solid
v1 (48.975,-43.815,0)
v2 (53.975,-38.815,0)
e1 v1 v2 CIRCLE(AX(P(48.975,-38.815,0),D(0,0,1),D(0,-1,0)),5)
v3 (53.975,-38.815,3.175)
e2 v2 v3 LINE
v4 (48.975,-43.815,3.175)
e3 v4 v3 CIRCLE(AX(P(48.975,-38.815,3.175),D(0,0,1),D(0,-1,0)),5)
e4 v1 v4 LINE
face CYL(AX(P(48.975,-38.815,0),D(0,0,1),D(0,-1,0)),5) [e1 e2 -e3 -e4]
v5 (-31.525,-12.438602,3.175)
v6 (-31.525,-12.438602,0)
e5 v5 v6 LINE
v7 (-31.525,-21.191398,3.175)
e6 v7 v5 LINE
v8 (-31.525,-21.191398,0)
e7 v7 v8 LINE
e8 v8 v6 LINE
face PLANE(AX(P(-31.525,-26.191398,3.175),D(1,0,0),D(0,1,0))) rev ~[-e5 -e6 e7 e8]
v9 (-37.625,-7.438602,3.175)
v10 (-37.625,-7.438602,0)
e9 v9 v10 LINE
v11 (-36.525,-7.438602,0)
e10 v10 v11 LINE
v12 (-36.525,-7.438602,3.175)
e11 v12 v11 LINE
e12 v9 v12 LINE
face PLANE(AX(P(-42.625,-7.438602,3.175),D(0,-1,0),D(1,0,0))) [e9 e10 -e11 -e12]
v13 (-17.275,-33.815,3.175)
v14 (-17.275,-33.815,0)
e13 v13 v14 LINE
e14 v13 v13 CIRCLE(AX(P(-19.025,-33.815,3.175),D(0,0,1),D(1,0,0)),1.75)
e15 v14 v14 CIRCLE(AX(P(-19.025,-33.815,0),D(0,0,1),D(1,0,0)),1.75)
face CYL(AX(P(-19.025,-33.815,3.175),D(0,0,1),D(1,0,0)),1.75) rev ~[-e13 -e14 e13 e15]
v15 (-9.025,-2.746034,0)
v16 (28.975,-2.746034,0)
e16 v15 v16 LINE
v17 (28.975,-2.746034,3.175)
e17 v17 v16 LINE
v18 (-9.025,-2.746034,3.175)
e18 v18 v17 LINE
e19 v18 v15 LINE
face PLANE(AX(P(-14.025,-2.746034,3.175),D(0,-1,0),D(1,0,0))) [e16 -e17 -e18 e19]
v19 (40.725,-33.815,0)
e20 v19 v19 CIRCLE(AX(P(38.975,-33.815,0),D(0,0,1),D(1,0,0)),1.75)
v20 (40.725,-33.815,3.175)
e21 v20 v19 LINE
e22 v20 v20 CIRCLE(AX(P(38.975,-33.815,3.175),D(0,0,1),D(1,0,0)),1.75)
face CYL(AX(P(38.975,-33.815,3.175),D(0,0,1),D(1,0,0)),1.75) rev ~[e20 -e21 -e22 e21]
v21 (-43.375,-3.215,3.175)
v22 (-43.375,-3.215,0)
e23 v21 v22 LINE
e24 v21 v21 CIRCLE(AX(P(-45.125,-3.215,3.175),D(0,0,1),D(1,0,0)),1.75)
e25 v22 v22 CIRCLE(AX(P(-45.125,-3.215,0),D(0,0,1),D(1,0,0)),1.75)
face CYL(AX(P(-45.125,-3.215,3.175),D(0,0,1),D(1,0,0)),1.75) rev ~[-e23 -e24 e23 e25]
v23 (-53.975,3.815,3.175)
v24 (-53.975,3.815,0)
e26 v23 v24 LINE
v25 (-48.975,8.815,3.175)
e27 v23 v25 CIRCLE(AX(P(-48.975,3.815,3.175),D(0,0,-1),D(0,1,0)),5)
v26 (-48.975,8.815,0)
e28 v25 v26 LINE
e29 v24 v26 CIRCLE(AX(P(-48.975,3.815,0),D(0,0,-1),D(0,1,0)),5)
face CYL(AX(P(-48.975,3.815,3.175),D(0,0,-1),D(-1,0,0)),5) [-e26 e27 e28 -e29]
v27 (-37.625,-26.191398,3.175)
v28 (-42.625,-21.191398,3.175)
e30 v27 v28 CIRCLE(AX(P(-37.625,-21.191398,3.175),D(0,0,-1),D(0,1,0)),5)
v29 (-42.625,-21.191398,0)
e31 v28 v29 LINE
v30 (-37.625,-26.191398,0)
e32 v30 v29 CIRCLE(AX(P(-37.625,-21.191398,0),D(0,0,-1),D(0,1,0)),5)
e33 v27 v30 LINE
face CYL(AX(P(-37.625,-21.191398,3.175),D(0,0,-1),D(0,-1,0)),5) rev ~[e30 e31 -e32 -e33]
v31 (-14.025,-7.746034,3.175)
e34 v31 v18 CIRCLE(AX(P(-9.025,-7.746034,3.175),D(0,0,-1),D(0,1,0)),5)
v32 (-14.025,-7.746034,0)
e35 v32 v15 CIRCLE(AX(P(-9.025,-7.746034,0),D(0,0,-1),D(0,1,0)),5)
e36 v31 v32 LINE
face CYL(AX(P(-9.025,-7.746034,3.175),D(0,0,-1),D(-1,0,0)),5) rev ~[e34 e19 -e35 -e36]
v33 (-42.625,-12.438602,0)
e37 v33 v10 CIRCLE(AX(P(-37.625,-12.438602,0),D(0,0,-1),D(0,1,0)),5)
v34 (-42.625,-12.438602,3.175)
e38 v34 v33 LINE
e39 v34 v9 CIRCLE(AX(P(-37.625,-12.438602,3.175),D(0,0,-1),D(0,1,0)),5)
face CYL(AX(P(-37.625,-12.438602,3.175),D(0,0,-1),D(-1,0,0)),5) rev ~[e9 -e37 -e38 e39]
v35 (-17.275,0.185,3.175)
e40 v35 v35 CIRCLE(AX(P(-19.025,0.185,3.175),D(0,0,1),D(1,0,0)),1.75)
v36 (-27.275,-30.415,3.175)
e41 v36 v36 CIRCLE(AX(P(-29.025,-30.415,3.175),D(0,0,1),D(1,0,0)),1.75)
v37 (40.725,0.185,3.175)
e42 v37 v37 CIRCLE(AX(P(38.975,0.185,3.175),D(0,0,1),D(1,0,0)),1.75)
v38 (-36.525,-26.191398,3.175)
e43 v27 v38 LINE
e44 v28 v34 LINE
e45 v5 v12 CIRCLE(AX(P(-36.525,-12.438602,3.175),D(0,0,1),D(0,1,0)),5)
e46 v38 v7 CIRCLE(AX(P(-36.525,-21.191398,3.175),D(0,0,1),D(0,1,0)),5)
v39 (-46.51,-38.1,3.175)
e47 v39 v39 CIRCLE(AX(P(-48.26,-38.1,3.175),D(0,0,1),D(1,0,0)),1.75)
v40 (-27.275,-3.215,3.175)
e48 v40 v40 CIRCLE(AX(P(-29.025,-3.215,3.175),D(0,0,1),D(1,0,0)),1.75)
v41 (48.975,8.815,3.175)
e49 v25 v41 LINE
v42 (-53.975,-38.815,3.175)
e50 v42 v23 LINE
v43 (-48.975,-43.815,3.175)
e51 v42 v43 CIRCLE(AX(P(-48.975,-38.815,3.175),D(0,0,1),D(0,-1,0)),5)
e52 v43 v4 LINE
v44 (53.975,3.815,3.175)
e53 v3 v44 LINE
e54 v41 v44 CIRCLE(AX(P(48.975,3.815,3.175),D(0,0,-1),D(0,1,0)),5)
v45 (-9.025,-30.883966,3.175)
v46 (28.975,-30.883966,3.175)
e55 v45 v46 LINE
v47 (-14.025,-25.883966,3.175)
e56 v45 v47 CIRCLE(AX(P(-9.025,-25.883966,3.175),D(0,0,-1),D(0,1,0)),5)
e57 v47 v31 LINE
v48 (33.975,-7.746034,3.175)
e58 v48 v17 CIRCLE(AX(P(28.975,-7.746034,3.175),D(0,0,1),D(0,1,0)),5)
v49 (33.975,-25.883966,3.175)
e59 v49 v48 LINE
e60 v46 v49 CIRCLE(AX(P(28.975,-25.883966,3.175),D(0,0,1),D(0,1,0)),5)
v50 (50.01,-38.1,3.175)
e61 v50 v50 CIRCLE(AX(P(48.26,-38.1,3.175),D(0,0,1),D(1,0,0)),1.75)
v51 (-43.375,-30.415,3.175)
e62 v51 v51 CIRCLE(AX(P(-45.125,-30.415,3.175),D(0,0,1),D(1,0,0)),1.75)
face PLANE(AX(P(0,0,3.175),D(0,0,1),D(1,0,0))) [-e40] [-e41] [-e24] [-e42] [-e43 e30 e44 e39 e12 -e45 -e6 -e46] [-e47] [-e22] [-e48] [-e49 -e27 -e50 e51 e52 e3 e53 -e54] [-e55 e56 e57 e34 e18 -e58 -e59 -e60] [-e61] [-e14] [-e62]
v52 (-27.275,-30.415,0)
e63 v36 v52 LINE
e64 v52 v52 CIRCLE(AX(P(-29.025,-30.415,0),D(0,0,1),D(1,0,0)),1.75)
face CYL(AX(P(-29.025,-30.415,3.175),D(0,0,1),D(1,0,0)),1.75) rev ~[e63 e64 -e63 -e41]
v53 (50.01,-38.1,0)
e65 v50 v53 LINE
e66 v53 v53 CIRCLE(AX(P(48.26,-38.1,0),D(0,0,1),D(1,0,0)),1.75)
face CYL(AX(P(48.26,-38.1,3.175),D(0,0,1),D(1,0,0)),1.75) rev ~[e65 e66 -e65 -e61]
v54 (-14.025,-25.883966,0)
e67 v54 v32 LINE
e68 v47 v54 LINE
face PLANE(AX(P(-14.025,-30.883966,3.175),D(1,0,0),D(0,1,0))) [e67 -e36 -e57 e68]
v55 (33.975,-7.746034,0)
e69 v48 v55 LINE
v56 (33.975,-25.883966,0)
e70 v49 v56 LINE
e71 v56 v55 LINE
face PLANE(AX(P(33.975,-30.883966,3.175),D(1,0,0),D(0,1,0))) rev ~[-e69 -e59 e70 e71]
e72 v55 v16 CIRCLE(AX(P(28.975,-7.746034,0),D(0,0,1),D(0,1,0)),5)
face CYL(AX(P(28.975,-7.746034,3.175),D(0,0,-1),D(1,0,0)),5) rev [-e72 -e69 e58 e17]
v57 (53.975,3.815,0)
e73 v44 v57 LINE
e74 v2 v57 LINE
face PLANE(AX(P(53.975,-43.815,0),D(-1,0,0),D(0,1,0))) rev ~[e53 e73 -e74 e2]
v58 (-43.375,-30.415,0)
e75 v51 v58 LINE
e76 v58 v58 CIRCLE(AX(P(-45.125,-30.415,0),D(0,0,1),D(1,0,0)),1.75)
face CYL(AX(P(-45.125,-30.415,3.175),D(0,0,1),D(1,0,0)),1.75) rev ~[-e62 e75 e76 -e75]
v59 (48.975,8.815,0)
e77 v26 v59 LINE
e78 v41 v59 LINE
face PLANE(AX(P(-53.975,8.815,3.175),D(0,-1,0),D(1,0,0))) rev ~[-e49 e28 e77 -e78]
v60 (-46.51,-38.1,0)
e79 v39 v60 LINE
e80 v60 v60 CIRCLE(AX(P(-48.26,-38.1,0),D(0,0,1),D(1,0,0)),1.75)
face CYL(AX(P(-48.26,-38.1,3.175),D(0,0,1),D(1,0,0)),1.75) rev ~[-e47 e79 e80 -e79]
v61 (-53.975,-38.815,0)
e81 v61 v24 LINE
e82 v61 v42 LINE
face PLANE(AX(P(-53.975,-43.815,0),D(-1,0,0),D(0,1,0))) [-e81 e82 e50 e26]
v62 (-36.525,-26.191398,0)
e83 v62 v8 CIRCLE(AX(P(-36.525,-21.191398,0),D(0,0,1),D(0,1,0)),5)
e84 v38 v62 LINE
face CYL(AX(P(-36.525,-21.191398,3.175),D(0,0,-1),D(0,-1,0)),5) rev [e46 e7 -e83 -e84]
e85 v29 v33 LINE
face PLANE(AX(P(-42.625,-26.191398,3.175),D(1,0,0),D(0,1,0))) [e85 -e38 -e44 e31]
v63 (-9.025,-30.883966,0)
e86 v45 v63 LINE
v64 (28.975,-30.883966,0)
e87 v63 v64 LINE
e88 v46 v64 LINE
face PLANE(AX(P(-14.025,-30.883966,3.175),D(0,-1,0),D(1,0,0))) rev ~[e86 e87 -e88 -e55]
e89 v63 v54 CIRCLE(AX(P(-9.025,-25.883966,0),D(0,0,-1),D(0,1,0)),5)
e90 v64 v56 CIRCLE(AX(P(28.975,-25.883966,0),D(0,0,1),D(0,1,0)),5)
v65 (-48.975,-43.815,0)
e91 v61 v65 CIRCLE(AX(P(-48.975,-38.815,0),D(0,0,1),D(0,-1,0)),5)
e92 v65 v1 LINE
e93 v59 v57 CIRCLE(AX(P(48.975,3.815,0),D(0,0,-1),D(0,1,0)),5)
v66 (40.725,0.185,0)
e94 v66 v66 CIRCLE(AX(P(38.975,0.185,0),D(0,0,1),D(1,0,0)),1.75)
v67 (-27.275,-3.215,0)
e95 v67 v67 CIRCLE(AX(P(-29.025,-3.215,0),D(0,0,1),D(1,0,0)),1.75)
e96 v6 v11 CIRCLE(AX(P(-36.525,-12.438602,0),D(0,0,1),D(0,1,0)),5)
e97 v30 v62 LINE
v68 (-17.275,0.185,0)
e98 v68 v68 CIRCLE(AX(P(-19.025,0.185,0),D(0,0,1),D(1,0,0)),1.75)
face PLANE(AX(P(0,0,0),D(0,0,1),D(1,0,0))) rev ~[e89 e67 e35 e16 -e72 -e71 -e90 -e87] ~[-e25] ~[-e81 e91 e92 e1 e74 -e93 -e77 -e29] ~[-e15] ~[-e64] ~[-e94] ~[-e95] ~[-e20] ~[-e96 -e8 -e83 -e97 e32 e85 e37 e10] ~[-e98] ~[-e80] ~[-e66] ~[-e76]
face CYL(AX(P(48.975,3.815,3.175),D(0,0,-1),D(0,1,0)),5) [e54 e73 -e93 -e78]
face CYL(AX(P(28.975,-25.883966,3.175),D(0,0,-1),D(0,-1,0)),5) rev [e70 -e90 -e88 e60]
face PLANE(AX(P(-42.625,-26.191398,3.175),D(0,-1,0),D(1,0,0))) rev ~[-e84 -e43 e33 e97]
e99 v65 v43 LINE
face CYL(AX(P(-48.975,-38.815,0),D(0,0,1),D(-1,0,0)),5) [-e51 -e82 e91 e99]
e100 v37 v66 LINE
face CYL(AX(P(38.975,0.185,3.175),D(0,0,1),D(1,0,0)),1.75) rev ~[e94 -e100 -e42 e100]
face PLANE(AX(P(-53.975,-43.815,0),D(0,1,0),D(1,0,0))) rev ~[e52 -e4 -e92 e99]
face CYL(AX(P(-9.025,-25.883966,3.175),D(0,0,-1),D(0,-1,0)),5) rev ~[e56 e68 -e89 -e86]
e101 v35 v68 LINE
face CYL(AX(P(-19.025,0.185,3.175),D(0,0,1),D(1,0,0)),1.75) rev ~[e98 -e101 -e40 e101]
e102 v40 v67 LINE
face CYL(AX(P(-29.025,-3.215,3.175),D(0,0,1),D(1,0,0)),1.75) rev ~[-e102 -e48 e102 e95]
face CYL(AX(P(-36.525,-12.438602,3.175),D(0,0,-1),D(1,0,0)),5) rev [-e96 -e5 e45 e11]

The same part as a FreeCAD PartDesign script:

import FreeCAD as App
import Part
import Sketcher


def edges_at(feature, points):
    """Names of the edges that pass closest to the given points."""
    edges = feature.Shape.Edges
    near = lambda p: min(range(len(edges)), key=lambda i: edges[i].distToShape(Part.Vertex(*p))[0])
    return sorted({f"Edge{near(p) + 1}" for p in points})

doc = App.newDocument("Part")
body = doc.addObject("PartDesign::Body", "Body")

sketch1 = body.newObject("Sketcher::SketchObject", "Sketch")
sketch1.AttachmentSupport = (doc.getObject("XY_Plane"), [""])
sketch1.MapMode = "FlatFace"
sketch1.addGeometry([
    Part.LineSegment(App.Vector(-54, 44, 0), App.Vector(-54, -44, 0)),
    Part.LineSegment(App.Vector(-54, -44, 0), App.Vector(54, -44, 0)),
    Part.LineSegment(App.Vector(54, -44, 0), App.Vector(54, 44, 0)),
    Part.LineSegment(App.Vector(54, 44, 0), App.Vector(-54, 44, 0)),
], False)
sketch1.addConstraint([
    Sketcher.Constraint("Coincident", 0, 2, 1, 1),
    Sketcher.Constraint("Coincident", 1, 2, 2, 1),
    Sketcher.Constraint("Coincident", 2, 2, 3, 1),
    Sketcher.Constraint("Coincident", 3, 2, 0, 1),
    Sketcher.Constraint("Vertical", 0),
    Sketcher.Constraint("Horizontal", 1),
    Sketcher.Constraint("Vertical", 2),
    Sketcher.Constraint("Horizontal", 3),
    Sketcher.Constraint("Symmetric", 0, 2, 2, 2, -1, 1),
    Sketcher.Constraint("DistanceX", 1, 1, 1, 2, 107.95),
    Sketcher.Constraint("DistanceY", 0, 2, 0, 1, 87.63),
])
pad1 = body.newObject("PartDesign::Pad", "Pad")
pad1.Profile = sketch1
pad1.Length = 3.175

sketch2 = body.newObject("Sketcher::SketchObject", "Sketch001")
sketch2.AttachmentSupport = (doc.getObject("XY_Plane"), [""])
sketch2.MapMode = "FlatFace"
sketch2.AttachmentOffset = App.Placement(App.Vector(0, 0, 3.175), App.Rotation())
sketch2.addGeometry([
    Part.Circle(App.Vector(-48.3, 38.1, 0), App.Vector(0, 0, 1), 1.8),
    Part.Circle(App.Vector(48.3, 38.1, 0), App.Vector(0, 0, 1), 1.8),
    Part.Circle(App.Vector(48.3, -38.1, 0), App.Vector(0, 0, 1), 1.8),
    Part.Circle(App.Vector(-48.3, -38.1, 0), App.Vector(0, 0, 1), 1.8),
], False)
sketch2.addConstraint([
    Sketcher.Constraint("Equal", 0, 1),
    Sketcher.Constraint("Equal", 1, 2),
    Sketcher.Constraint("Equal", 2, 3),
    Sketcher.Constraint("Symmetric", 0, 3, 2, 3, -1, 1),
    Sketcher.Constraint("Symmetric", 1, 3, 3, 3, -1, 1),
    Sketcher.Constraint("Symmetric", 0, 3, 1, 3, -2),
    Sketcher.Constraint("Diameter", 0, 3.5),
    Sketcher.Constraint("DistanceY", -1, 1, 0, 3, 38.1),
    Sketcher.Constraint("DistanceX", 0, 3, -1, 1, 48.26),
])
pocket1 = body.newObject("PartDesign::Pocket", "Pocket")
pocket1.Profile = sketch2
pocket1.Type = "ThroughAll"

sketch3 = body.newObject("Sketcher::SketchObject", "Sketch002")
sketch3.AttachmentSupport = (doc.getObject("XY_Plane"), [""])
sketch3.MapMode = "FlatFace"
sketch3.AttachmentOffset = App.Placement(App.Vector(0, 0, 3.175), App.Rotation())
sketch3.addGeometry([
    Part.Circle(App.Vector(-29, -3.2, 0), App.Vector(0, 0, 1), 1.8),
    Part.Circle(App.Vector(-29, -30.4, 0), App.Vector(0, 0, 1), 1.8),
    Part.Circle(App.Vector(-45.1, -30.4, 0), App.Vector(0, 0, 1), 1.8),
    Part.Circle(App.Vector(-45.1, -3.2, 0), App.Vector(0, 0, 1), 1.8),
    Part.Circle(App.Vector(-19, -33.8, 0), App.Vector(0, 0, 1), 1.8),
    Part.Circle(App.Vector(39, -33.8, 0), App.Vector(0, 0, 1), 1.8),
    Part.Circle(App.Vector(39, 0.2, 0), App.Vector(0, 0, 1), 1.8),
    Part.Circle(App.Vector(-19, 0.2, 0), App.Vector(0, 0, 1), 1.8),
    Part.LineSegment(App.Vector(-14, -2.7, 0), App.Vector(-14, -30.9, 0)),
    Part.LineSegment(App.Vector(-14, -30.9, 0), App.Vector(34, -30.9, 0)),
    Part.LineSegment(App.Vector(34, -30.9, 0), App.Vector(34, -2.7, 0)),
    Part.LineSegment(App.Vector(34, -2.7, 0), App.Vector(-14, -2.7, 0)),
    Part.LineSegment(App.Vector(-42.6, -7.4, 0), App.Vector(-42.6, -26.2, 0)),
    Part.LineSegment(App.Vector(-42.6, -26.2, 0), App.Vector(-31.5, -26.2, 0)),
    Part.LineSegment(App.Vector(-31.5, -26.2, 0), App.Vector(-31.5, -7.4, 0)),
    Part.LineSegment(App.Vector(-31.5, -7.4, 0), App.Vector(-42.6, -7.4, 0)),
], False)
sketch3.addConstraint([
    Sketcher.Constraint("Coincident", 8, 2, 9, 1),
    Sketcher.Constraint("Coincident", 9, 2, 10, 1),
    Sketcher.Constraint("Coincident", 10, 2, 11, 1),
    Sketcher.Constraint("Coincident", 11, 2, 8, 1),
    Sketcher.Constraint("Coincident", 12, 2, 13, 1),
    Sketcher.Constraint("Coincident", 13, 2, 14, 1),
    Sketcher.Constraint("Coincident", 14, 2, 15, 1),
    Sketcher.Constraint("Coincident", 15, 2, 12, 1),
    Sketcher.Constraint("Vertical", 8),
    Sketcher.Constraint("Horizontal", 9),
    Sketcher.Constraint("Vertical", 10),
    Sketcher.Constraint("Horizontal", 11),
    Sketcher.Constraint("Vertical", 12),
    Sketcher.Constraint("Horizontal", 13),
    Sketcher.Constraint("Vertical", 14),
    Sketcher.Constraint("Horizontal", 15),
    Sketcher.Constraint("Equal", 0, 1),
    Sketcher.Constraint("Equal", 1, 2),
    Sketcher.Constraint("Equal", 2, 3),
    Sketcher.Constraint("Equal", 3, 4),
    Sketcher.Constraint("Equal", 4, 5),
    Sketcher.Constraint("Equal", 5, 6),
    Sketcher.Constraint("Equal", 6, 7),
    Sketcher.Constraint("Horizontal", 1, 3, 2, 3),
    Sketcher.Constraint("Horizontal", 0, 3, 3, 3),
    Sketcher.Constraint("Horizontal", 4, 3, 5, 3),
    Sketcher.Constraint("Horizontal", 6, 3, 7, 3),
    Sketcher.Constraint("Vertical", 0, 3, 1, 3),
    Sketcher.Constraint("Vertical", 2, 3, 3, 3),
    Sketcher.Constraint("Vertical", 5, 3, 6, 3),
    Sketcher.Constraint("Vertical", 4, 3, 7, 3),
    Sketcher.Constraint("Diameter", 0, 3.5),
    Sketcher.Constraint("DistanceX", 9, 1, 9, 2, 48.0),
    Sketcher.Constraint("DistanceX", 13, 1, 13, 2, 11.1),
    Sketcher.Constraint("DistanceX", 1, 3, 4, 3, 10.0),
    Sketcher.Constraint("DistanceX", 4, 3, 5, 3, 58.0),
    Sketcher.Constraint("DistanceY", 5, 3, 6, 3, 34.0),
    Sketcher.Constraint("DistanceX", 4, 3, 8, 2, 5.0),
    Sketcher.Constraint("DistanceY", 1, 3, 0, 3, 27.2),
    Sketcher.Constraint("DistanceX", 2, 3, 1, 3, 16.1),
    Sketcher.Constraint("DistanceY", 4, 3, 1, 3, 3.4),
    Sketcher.Constraint("DistanceX", 2, 3, 12, 2, 2.5),
    Sketcher.Constraint("DistanceX", 0, 3, -1, 1, 29.025),
    Sketcher.Constraint("DistanceY", 0, 3, -1, 1, 3.215),
    Sketcher.Constraint("DistanceY", 8, 2, 8, 1, 28.137931),
    Sketcher.Constraint("DistanceY", 12, 2, 12, 1, 18.752795),
    Sketcher.Constraint("DistanceY", 8, 2, 13, 2, 4.692568),
    Sketcher.Constraint("DistanceY", 8, 2, -1, 1, 30.883966),
])
pocket2 = body.newObject("PartDesign::Pocket", "Pocket001")
pocket2.Profile = sketch3
pocket2.Type = "ThroughAll"

sketch4 = body.newObject("Sketcher::SketchObject", "Sketch003")
sketch4.AttachmentSupport = (doc.getObject("XY_Plane"), [""])
sketch4.MapMode = "FlatFace"
sketch4.AttachmentOffset = App.Placement(App.Vector(0, 0, 3.175), App.Rotation())
sketch4.addGeometry([
    Part.LineSegment(App.Vector(-54, 44, 0), App.Vector(-54, 9, 0)),
    Part.LineSegment(App.Vector(-54, 9, 0), App.Vector(54, 9, 0)),
    Part.LineSegment(App.Vector(54, 9, 0), App.Vector(54, 44, 0)),
    Part.LineSegment(App.Vector(54, 44, 0), App.Vector(-54, 44, 0)),
], False)
sketch4.addConstraint([
    Sketcher.Constraint("Coincident", 0, 2, 1, 1),
    Sketcher.Constraint("Coincident", 1, 2, 2, 1),
    Sketcher.Constraint("Coincident", 2, 2, 3, 1),
    Sketcher.Constraint("Coincident", 3, 2, 0, 1),
    Sketcher.Constraint("Vertical", 0),
    Sketcher.Constraint("Horizontal", 1),
    Sketcher.Constraint("Vertical", 2),
    Sketcher.Constraint("Horizontal", 3),
    Sketcher.Constraint("DistanceY", 0, 2, 0, 1, 35.0),
    Sketcher.Constraint("DistanceX", 1, 1, 1, 2, 107.95),
    Sketcher.Constraint("DistanceX", 0, 2, -1, 1, 53.975),
    Sketcher.Constraint("DistanceY", -1, 1, 0, 2, 8.815),
])
pocket3 = body.newObject("PartDesign::Pocket", "Pocket002")
pocket3.Profile = sketch4
pocket3.Type = "ThroughAll"
doc.recompute()

fillet = body.newObject("PartDesign::Fillet", "Fillet")
fillet.Base = (pocket3, edges_at(pocket3, [
    (-53.975, 8.815, 1.587),
    (53.975, 8.815, 1.587),
    (33.975, -2.746, 1.587),
    (33.975, -30.884, 1.587),
    (-14.025, -30.884, 1.587),
    (-14.025, -2.746, 1.587),
    (-31.525, -7.439, 1.587),
    (-31.525, -26.191, 1.587),
    (-42.625, -26.191, 1.587),
    (-42.625, -7.439, 1.587),
    (53.975, -43.815, 1.587),
    (-53.975, -43.815, 1.587),
]))
fillet.Radius = 5

doc.recompute()
